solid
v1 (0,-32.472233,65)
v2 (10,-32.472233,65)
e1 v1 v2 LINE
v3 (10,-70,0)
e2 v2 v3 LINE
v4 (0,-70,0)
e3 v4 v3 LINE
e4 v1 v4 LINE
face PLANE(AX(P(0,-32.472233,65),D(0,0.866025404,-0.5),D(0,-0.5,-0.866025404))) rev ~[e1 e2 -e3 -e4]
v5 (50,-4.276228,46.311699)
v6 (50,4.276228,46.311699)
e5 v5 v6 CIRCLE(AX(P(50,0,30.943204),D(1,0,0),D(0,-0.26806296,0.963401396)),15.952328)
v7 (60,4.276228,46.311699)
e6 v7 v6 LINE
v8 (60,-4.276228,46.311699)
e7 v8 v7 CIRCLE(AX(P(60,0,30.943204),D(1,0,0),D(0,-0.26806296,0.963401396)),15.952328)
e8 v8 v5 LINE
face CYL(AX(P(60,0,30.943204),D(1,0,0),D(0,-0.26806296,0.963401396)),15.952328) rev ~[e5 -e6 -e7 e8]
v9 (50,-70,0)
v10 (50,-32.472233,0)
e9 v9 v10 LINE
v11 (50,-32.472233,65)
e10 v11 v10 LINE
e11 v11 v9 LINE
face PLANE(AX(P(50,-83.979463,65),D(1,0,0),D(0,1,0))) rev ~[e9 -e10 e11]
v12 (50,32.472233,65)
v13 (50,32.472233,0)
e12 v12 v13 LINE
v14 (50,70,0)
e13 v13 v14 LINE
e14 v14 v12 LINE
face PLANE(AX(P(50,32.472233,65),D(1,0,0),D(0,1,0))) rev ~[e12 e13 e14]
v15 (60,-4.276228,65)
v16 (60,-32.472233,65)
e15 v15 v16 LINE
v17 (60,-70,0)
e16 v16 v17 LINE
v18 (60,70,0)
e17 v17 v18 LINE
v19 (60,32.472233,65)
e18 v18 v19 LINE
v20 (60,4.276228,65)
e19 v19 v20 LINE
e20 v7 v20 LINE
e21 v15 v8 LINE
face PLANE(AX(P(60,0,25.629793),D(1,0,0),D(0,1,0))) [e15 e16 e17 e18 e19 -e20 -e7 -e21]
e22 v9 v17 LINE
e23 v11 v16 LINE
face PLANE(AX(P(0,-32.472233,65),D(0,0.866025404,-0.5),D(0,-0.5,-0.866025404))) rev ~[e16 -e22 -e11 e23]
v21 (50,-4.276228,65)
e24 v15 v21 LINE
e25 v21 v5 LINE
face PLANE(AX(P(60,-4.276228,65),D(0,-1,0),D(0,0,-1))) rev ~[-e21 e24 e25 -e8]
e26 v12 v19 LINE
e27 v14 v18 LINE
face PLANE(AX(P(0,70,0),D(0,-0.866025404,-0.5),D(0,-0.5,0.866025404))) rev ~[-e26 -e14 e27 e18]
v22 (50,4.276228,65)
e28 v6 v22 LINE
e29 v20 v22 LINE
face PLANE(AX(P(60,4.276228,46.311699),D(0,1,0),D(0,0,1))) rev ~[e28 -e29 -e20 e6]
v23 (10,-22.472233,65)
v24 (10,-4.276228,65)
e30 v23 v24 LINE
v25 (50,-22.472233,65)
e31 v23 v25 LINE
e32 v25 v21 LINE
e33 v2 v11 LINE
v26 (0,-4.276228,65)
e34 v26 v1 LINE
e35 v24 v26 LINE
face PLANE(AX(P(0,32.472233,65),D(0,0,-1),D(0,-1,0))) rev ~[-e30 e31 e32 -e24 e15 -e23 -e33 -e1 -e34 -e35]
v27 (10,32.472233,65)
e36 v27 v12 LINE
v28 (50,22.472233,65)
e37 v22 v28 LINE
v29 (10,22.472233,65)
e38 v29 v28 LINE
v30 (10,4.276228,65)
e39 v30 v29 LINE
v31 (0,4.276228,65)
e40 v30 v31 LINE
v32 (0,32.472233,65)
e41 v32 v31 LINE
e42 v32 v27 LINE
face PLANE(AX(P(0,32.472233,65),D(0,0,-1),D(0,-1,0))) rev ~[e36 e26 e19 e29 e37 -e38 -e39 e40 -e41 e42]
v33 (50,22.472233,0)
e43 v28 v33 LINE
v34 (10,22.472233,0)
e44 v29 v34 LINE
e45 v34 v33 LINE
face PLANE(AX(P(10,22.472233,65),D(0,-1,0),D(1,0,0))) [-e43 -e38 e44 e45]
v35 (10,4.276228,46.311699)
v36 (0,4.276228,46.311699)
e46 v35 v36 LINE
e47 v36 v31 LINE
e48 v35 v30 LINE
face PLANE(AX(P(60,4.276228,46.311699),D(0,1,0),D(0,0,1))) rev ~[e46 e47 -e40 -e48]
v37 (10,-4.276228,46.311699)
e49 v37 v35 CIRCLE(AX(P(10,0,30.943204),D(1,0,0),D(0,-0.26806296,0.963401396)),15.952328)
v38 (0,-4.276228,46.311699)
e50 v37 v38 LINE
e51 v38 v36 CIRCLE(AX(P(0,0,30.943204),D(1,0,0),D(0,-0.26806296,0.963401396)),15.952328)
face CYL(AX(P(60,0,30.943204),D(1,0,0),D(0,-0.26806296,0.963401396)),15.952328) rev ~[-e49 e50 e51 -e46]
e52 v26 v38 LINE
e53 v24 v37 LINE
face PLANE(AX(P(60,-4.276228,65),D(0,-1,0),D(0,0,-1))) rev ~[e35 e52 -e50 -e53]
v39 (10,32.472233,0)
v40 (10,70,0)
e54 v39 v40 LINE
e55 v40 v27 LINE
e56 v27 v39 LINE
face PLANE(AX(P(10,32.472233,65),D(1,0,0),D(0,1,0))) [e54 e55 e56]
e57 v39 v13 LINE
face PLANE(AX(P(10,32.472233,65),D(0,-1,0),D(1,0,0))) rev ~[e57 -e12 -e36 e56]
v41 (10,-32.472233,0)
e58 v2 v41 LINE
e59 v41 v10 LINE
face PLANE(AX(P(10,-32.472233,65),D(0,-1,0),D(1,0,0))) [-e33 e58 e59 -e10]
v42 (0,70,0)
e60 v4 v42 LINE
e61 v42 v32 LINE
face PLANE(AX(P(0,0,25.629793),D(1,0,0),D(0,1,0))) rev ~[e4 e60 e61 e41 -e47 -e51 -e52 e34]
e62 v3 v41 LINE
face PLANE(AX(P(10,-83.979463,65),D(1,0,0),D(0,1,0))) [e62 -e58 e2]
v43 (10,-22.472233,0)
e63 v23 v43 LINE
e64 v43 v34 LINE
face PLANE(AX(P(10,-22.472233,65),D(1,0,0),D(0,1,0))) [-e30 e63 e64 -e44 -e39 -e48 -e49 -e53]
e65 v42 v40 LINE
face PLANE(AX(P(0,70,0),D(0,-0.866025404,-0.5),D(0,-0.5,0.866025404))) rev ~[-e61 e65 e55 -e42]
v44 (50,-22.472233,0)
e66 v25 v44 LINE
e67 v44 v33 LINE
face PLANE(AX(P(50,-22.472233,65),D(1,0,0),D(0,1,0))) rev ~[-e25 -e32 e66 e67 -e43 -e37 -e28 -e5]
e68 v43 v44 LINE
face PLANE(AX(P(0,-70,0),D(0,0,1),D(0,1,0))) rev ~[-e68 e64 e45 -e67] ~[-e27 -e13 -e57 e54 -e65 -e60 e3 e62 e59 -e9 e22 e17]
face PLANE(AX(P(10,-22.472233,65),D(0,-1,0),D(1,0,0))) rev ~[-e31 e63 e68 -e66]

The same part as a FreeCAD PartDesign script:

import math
import FreeCAD as App
import Part
import Sketcher
from FreeCAD import Vector
Q = App.Units.Quantity


def add_polygon(sketch, points):
    """Adds a closed chain of lines whose ends are joined by coincident constraints."""
    first, n = sketch.GeometryCount, len(points)
    for a, b in zip(points, points[1:] + points[:1]):
        sketch.addGeometry(Part.LineSegment(App.Vector(*a, 0), App.Vector(*b, 0)), False)
    for i in range(n):
        sketch.addConstraint(Sketcher.Constraint("Coincident", first + i, 2, first + (i + 1) % n, 1))

doc = App.newDocument("Part")
body = doc.addObject("PartDesign::Body", "Body")

sketch1 = body.newObject("Sketcher::SketchObject", "Sketch")
sketch1.AttachmentSupport = (doc.getObject("YZ_Plane"), [""])
sketch1.MapMode = "FlatFace"
add_polygon(sketch1, [(-70, 0), (70, 0), (32.472233, 65), (-32.472233, 65)])
sketch1.addConstraint(Sketcher.Constraint("Horizontal", 0))
sketch1.addConstraint(Sketcher.Constraint("Horizontal", 2))
sketch1.addConstraint(Sketcher.Constraint("Symmetric", 0, 2, 3, 2, -1, 1))
sketch1.addConstraint(Sketcher.Constraint("Equal", 1, 3))
sketch1.addConstraint(Sketcher.Constraint("DistanceX", 0, 1, 0, 2, Q("140 mm")))
sketch1.addConstraint(Sketcher.Constraint("Angle", 1, Q("120 deg")))
sketch1.addConstraint(Sketcher.Constraint("DistanceY", -1, 1, 1, 2, Q("65 mm")))
pad1 = body.newObject("PartDesign::Pad", "Pad")
pad1.Profile = sketch1
pad1.Length = 60

sketch2 = body.newObject("Sketcher::SketchObject", "Sketch001")
sketch2.AttachmentSupport = (doc.getObject("XY_Plane"), [""])
sketch2.MapMode = "FlatFace"
sketch2.AttachmentOffset = App.Placement(Vector(0, 0, 65), App.Rotation())
add_polygon(sketch2, [(10, -32), (10, -84), (50, -84), (50, -32)])
add_polygon(sketch2, [(10, 84), (10, 32), (50, 32), (50, 84)])
sketch2.addConstraint(Sketcher.Constraint("Vertical", 0))
sketch2.addConstraint(Sketcher.Constraint("Horizontal", 1))
sketch2.addConstraint(Sketcher.Constraint("Vertical", 2))
sketch2.addConstraint(Sketcher.Constraint("Horizontal", 3))
sketch2.addConstraint(Sketcher.Constraint("Vertical", 4))
sketch2.addConstraint(Sketcher.Constraint("Horizontal", 5))
sketch2.addConstraint(Sketcher.Constraint("Vertical", 6))
sketch2.addConstraint(Sketcher.Constraint("Horizontal", 7))
sketch2.addConstraint(Sketcher.Constraint("Symmetric", 3, 2, 4, 2, -1))
sketch2.addConstraint(Sketcher.Constraint("Symmetric", 1, 2, 6, 2, -1))
sketch2.addConstraint(Sketcher.Constraint("DistanceX", 1, 1, 1, 2, Q("40 mm")))
sketch2.addConstraint(Sketcher.Constraint("DistanceX", -1, 1, 0, 2, Q("10 mm")))
sketch2.addConstraint(Sketcher.Constraint("DistanceY", 0, 2, 0, 1, Q("51.50723 mm")))
sketch2.addConstraint(Sketcher.Constraint("DistanceY", 0, 2, -1, 1, Q("83.979463 mm")))
pocket1 = body.newObject("PartDesign::Pocket", "Pocket")
pocket1.Profile = sketch2
pocket1.Length = 126

sketch3 = body.newObject("Sketcher::SketchObject", "Sketch002")
sketch3.AttachmentSupport = (doc.getObject("XY_Plane"), [""])
sketch3.MapMode = "FlatFace"
sketch3.AttachmentOffset = App.Placement(Vector(0, 0, 65), App.Rotation())
add_polygon(sketch3, [(10, 22), (10, -22), (50, -22), (50, 22)])
sketch3.addConstraint(Sketcher.Constraint("Vertical", 0))
sketch3.addConstraint(Sketcher.Constraint("Horizontal", 1))
sketch3.addConstraint(Sketcher.Constraint("Vertical", 2))
sketch3.addConstraint(Sketcher.Constraint("Horizontal", 3))
sketch3.addConstraint(Sketcher.Constraint("DistanceX", 1, 1, 1, 2, Q("40 mm")))
sketch3.addConstraint(Sketcher.Constraint("DistanceX", -1, 1, 0, 2, Q("10 mm")))
sketch3.addConstraint(Sketcher.Constraint("DistanceY", 0, 2, 0, 1, Q("44.944465 mm")))
sketch3.addConstraint(Sketcher.Constraint("DistanceY", 0, 2, -1, 1, Q("22.472233 mm")))
pocket2 = body.newObject("PartDesign::Pocket", "Pocket001")
pocket2.Profile = sketch3
pocket2.Length = 92

sketch4 = body.newObject("Sketcher::SketchObject", "Sketch003")
sketch4.AttachmentSupport = (doc.getObject("YZ_Plane"), [""])
sketch4.MapMode = "FlatFace"
sketch4.AttachmentOffset = App.Placement(Vector(0, 0, 60), App.Rotation())
sketch4.addGeometry(Part.LineSegment(Vector(-4, 65, 0), Vector(-4, 46, 0)), False)
sketch4.addGeometry(Part.ArcOfCircle(Part.Circle(Vector(0, 31, 0), Vector(0, 0, 1), 16), math.radians(106), math.radians(434)), False)
sketch4.addGeometry(Part.LineSegment(Vector(4, 46, 0), Vector(4, 65, 0)), False)
sketch4.addGeometry(Part.LineSegment(Vector(4, 65, 0), Vector(-4, 65, 0)), False)
sketch4.addConstraint(Sketcher.Constraint("Coincident", 0, 2, 1, 1))
sketch4.addConstraint(Sketcher.Constraint("Coincident", 1, 2, 2, 1))
sketch4.addConstraint(Sketcher.Constraint("Coincident", 2, 2, 3, 1))
sketch4.addConstraint(Sketcher.Constraint("Coincident", 3, 2, 0, 1))
sketch4.addConstraint(Sketcher.Constraint("Vertical", 0))
sketch4.addConstraint(Sketcher.Constraint("Vertical", 2))
sketch4.addConstraint(Sketcher.Constraint("Horizontal", 3))
sketch4.addConstraint(Sketcher.Constraint("Symmetric", 0, 2, 1, 2, -2))
sketch4.addConstraint(Sketcher.Constraint("DistanceY", -1, 1, 2, 2, Q("65 mm")))
sketch4.addConstraint(Sketcher.Constraint("DistanceY", 0, 2, 0, 1, Q("18.688301 mm")))
sketch4.addConstraint(Sketcher.Constraint("Radius", 1, Q("15.952328 mm")))
sketch4.addConstraint(Sketcher.Constraint("DistanceX", 3, 2, 3, 1, Q("8.552456 mm")))
pocket3 = body.newObject("PartDesign::Pocket", "Pocket002")
pocket3.Profile = sketch4
pocket3.Length = 76

doc.recompute()
